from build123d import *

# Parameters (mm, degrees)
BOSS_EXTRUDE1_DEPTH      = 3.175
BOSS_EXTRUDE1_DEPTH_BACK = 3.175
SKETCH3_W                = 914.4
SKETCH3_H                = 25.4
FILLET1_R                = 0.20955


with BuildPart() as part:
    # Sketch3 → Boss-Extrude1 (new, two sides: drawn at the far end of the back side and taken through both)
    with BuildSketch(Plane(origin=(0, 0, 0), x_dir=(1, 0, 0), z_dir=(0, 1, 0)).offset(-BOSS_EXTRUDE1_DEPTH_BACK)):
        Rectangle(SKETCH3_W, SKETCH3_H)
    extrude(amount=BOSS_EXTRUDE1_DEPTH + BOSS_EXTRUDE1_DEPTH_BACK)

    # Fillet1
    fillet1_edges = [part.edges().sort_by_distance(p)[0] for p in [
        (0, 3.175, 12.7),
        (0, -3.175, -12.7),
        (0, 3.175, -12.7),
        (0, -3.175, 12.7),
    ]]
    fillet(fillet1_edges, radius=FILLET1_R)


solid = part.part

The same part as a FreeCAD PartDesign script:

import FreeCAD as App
import Part
import Sketcher

V = App.Vector
Q = App.Units.Quantity


def edges_at(feature, points):
    """Names of the edges that pass closest to the given points."""
    edges = feature.Shape.Edges
    near = lambda p: min(range(len(edges)), key=lambda i: edges[i].distToShape(Part.Vertex(*p))[0])
    return sorted({f"Edge{near(p) + 1}" for p in points})

doc = App.newDocument("Part")
body = doc.addObject("PartDesign::Body", "Body")

# Sketch on XZ plane
sketch1 = doc.addObject("Sketcher::SketchObject", "Sketch")
body.addObject(sketch1)
sketch1.AttachmentSupport = (doc.XZ_Plane, [""])
sketch1.MapMode = "FlatFace"
sketch1.addGeometry(Part.LineSegment(V(-457, -13, 0), V(-457, 13, 0)), False)
sketch1.addGeometry(Part.LineSegment(V(-457, 13, 0), V(457, 13, 0)), False)
sketch1.addGeometry(Part.LineSegment(V(457, 13, 0), V(457, -13, 0)), False)
sketch1.addGeometry(Part.LineSegment(V(457, -13, 0), V(-457, -13, 0)), False)
sketch1.addConstraint(Sketcher.Constraint("Coincident", 0, 2, 1, 1))
sketch1.addConstraint(Sketcher.Constraint("Coincident", 1, 2, 2, 1))
sketch1.addConstraint(Sketcher.Constraint("Coincident", 2, 2, 3, 1))
sketch1.addConstraint(Sketcher.Constraint("Coincident", 3, 2, 0, 1))
sketch1.addConstraint(Sketcher.Constraint("Vertical", 0))
sketch1.addConstraint(Sketcher.Constraint("Horizontal", 1))
sketch1.addConstraint(Sketcher.Constraint("Vertical", 2))
sketch1.addConstraint(Sketcher.Constraint("Horizontal", 3))
sketch1.addConstraint(Sketcher.Constraint("Symmetric", 0, 2, 2, 2, -1, 1))
sketch1.addConstraint(Sketcher.Constraint("DistanceX", 1, 1, 1, 2, Q("36 in")))
sketch1.addConstraint(Sketcher.Constraint("DistanceY", 0, 1, 0, 2, Q("1 in")))
pad1 = doc.addObject("PartDesign::Pad", "Pad")
body.addObject(pad1)
pad1.Profile = sketch1
pad1.Type = "TwoLengths"
pad1.Length = Q("0.125 in")
pad1.Length2 = Q("0.125 in")
pad1.Reversed = True
doc.recompute()

fillet = doc.addObject("PartDesign::Fillet", "Fillet")
body.addObject(fillet)
fillet.Base = (pad1, edges_at(pad1, [
    (0, 3.175, 12.7),
    (0, -3.175, -12.7),
    (0, 3.175, -12.7),
    (0, -3.175, 12.7),
]))
fillet.Radius = 0.20955

doc.recompute()
